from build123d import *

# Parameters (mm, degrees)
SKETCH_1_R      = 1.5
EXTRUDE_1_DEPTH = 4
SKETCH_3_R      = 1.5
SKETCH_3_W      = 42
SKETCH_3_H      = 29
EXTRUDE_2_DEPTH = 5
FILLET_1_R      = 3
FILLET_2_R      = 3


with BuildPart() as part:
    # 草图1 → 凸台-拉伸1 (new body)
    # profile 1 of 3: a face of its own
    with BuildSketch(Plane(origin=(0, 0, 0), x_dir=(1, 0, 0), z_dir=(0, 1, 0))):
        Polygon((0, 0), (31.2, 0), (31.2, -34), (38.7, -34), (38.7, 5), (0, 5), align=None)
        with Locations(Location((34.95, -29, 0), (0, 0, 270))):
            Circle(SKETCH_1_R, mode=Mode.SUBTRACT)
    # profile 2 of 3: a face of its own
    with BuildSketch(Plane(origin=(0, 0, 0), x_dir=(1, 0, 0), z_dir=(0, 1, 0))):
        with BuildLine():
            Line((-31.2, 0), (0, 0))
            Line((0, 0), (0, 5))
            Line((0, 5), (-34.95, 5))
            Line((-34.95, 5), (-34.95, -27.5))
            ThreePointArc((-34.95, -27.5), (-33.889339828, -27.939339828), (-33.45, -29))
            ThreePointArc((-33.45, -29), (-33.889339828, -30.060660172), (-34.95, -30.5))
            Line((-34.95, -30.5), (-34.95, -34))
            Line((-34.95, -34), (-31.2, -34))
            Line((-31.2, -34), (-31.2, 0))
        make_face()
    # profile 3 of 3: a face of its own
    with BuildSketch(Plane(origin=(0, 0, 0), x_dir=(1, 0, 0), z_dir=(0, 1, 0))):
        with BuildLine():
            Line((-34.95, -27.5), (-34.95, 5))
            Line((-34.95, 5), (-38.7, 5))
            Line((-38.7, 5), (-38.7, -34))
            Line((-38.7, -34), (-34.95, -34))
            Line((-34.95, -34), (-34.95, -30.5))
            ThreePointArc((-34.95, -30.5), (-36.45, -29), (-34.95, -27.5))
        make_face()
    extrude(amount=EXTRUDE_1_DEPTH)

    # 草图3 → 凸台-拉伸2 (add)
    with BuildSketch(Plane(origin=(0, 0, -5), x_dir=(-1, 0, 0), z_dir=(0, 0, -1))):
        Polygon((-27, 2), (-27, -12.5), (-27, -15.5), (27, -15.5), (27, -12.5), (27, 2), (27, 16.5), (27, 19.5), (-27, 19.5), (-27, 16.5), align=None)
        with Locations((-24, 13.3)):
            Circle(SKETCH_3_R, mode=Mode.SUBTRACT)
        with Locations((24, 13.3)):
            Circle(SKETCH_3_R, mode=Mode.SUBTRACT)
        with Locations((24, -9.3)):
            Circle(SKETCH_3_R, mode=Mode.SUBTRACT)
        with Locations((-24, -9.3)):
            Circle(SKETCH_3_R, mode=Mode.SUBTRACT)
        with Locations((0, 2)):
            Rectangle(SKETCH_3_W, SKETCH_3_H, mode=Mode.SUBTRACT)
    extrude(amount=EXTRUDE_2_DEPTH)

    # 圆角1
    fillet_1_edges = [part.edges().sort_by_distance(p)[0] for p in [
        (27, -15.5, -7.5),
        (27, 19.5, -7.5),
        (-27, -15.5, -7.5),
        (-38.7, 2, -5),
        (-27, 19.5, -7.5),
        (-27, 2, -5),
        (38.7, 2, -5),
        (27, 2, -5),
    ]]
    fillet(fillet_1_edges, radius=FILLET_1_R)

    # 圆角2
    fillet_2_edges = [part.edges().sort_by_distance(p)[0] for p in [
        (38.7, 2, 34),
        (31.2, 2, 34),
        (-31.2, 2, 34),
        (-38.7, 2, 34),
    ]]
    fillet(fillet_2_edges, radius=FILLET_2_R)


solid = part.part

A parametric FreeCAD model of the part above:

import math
import FreeCAD as App
import Part
import Sketcher
from FreeCAD import Vector
Q = App.Units.Quantity


def edges_at(feature, points):
    """Names of the edges that pass closest to the given points."""
    edges = feature.Shape.Edges
    near = lambda p: min(range(len(edges)), key=lambda i: edges[i].distToShape(Part.Vertex(*p))[0])
    return sorted({f"Edge{near(p) + 1}" for p in points})

doc = App.newDocument("Part")
body = doc.addObject("PartDesign::Body", "Body")

# Sketch on XZ plane
sketch1 = body.newObject("Sketcher::SketchObject", "Sketch")
sketch1.AttachmentSupport = (doc.getObject("XZ_Plane"), [""])
sketch1.MapMode = "FlatFace"
sketch1.addGeometry([
    Part.LineSegment(Vector(31.2, 0, 0), Vector(31.2, 34, 0)),  # 0
    Part.LineSegment(Vector(31.2, 34, 0), Vector(38.7, 34, 0)),  # 1
    Part.LineSegment(Vector(38.7, 34, 0), Vector(38.7, -5, 0)),  # 2
    Part.LineSegment(Vector(38.7, -5, 0), Vector(-38.7, -5, 0)),  # 3
    Part.LineSegment(Vector(-38.7, -5, 0), Vector(-38.7, 34, 0)),  # 4
    Part.LineSegment(Vector(-38.7, 34, 0), Vector(-31.2, 34, 0)),  # 5
    Part.LineSegment(Vector(-31.2, 34, 0), Vector(-31.2, 0, 0)),  # 6
    Part.LineSegment(Vector(-31.2, 0, 0), Vector(31.2, 0, 0)),  # 7
    Part.Circle(Vector(35, 29, 0), Vector(0, 0, 1), 1.5),  # 8
    Part.ArcOfCircle(Part.Circle(Vector(-34.9, 29, 0), Vector(0, 0, 1), 1.5), math.radians(-90), math.radians(0)),  # 9
    Part.ArcOfCircle(Part.Circle(Vector(-34.9, 29, 0), Vector(0, 0, 1), 1.5), math.radians(0), math.radians(90)),  # 10
    Part.ArcOfCircle(Part.Circle(Vector(-35, 29, 0), Vector(0, 0, 1), 1.5), math.radians(90), math.radians(270)),  # 11
], False)
sketch1.addConstraint([
    Sketcher.Constraint("Coincident", 0, 2, 1, 1),
    Sketcher.Constraint("Coincident", 1, 2, 2, 1),
    Sketcher.Constraint("Coincident", 2, 2, 3, 1),
    Sketcher.Constraint("Coincident", 3, 2, 4, 1),
    Sketcher.Constraint("Coincident", 4, 2, 5, 1),
    Sketcher.Constraint("Coincident", 5, 2, 6, 1),
    Sketcher.Constraint("Coincident", 6, 2, 7, 1),
    Sketcher.Constraint("Coincident", 7, 2, 0, 1),
    Sketcher.Constraint("Tangent", 9, 2, 10, 1),
    Sketcher.Constraint("Tangent", 10, 2, 11, 1),
    Sketcher.Constraint("Tangent", 11, 2, 9, 1),
    Sketcher.Constraint("Vertical", 0),
    Sketcher.Constraint("Horizontal", 1),
    Sketcher.Constraint("Vertical", 2),
    Sketcher.Constraint("Horizontal", 3),
    Sketcher.Constraint("Vertical", 4),
    Sketcher.Constraint("Horizontal", 5),
    Sketcher.Constraint("Vertical", 6),
    Sketcher.Constraint("Horizontal", 7),
    Sketcher.Constraint("Equal", 8, 9),
    Sketcher.Constraint("Symmetric", 6, 2, 7, 2, -1, 1),
    Sketcher.Constraint("Symmetric", 8, 3, 9, 3, -2),
    Sketcher.Constraint("Symmetric", 1, 2, 4, 2, -2),
    Sketcher.Constraint("Horizontal", 11, 3, 9, 2),
    Sketcher.Constraint("Vertical", 11, 3, 10, 2),
    Sketcher.Constraint("Vertical", 10, 2, 11, 2),
    Sketcher.Constraint("Diameter", 8, Q("3 mm")),
    Sketcher.Constraint("DistanceY", 0, 1, 0, 2, Q("34 mm")),
    Sketcher.Constraint("DistanceY", 2, 2, 2, 1, Q("39 mm")),
    Sketcher.Constraint("DistanceX", 1, 1, 1, 2, Q("7.5 mm")),
    Sketcher.Constraint("DistanceX", 3, 2, 3, 1, Q("77.4 mm")),
    Sketcher.Constraint("DistanceY", -1, 1, 8, 3, Q("29 mm")),
    Sketcher.Constraint("DistanceX", 9, 3, 8, 3, Q("69.9 mm")),
])
pad1 = body.newObject("PartDesign::Pad", "Pad")
pad1.Profile = sketch1
pad1.Length = 4
pad1.Reversed = True

# Sketch on XY plane
sketch2 = body.newObject("Sketcher::SketchObject", "Sketch001")
sketch2.AttachmentSupport = (doc.getObject("XY_Plane"), [""])
sketch2.MapMode = "FlatFace"
sketch2.AttachmentOffset = App.Placement(Vector(0, 0, -5), App.Rotation())
sketch2.addGeometry([
    Part.LineSegment(Vector(27, -15.5, 0), Vector(-27, -15.5, 0)),  # 0
    Part.LineSegment(Vector(-27, -15.5, 0), Vector(-27, 19.5, 0)),  # 1
    Part.LineSegment(Vector(-27, 19.5, 0), Vector(27, 19.5, 0)),  # 2
    Part.LineSegment(Vector(27, 19.5, 0), Vector(27, -15.5, 0)),  # 3
    Part.Circle(Vector(24, -9.3, 0), Vector(0, 0, 1), 1.5),  # 4
    Part.Circle(Vector(-24, -9.3, 0), Vector(0, 0, 1), 1.5),  # 5
    Part.Circle(Vector(24, 13.3, 0), Vector(0, 0, 1), 1.5),  # 6
    Part.LineSegment(Vector(-21, -12.5, 0), Vector(21, -12.5, 0)),  # 7
    Part.LineSegment(Vector(21, -12.5, 0), Vector(21, 16.5, 0)),  # 8
    Part.LineSegment(Vector(21, 16.5, 0), Vector(-21, 16.5, 0)),  # 9
    Part.LineSegment(Vector(-21, 16.5, 0), Vector(-21, -12.5, 0)),  # 10
    Part.Circle(Vector(-24, 13.3, 0), Vector(0, 0, 1), 1.5),  # 11
], False)
sketch2.addConstraint([
    Sketcher.Constraint("Coincident", 0, 2, 1, 1),
    Sketcher.Constraint("Coincident", 1, 2, 2, 1),
    Sketcher.Constraint("Coincident", 2, 2, 3, 1),
    Sketcher.Constraint("Coincident", 3, 2, 0, 1),
    Sketcher.Constraint("Coincident", 7, 2, 8, 1),
    Sketcher.Constraint("Coincident", 8, 2, 9, 1),
    Sketcher.Constraint("Coincident", 9, 2, 10, 1),
    Sketcher.Constraint("Coincident", 10, 2, 7, 1),
    Sketcher.Constraint("Horizontal", 0),
    Sketcher.Constraint("Vertical", 1),
    Sketcher.Constraint("Horizontal", 2),
    Sketcher.Constraint("Vertical", 3),
    Sketcher.Constraint("Horizontal", 7),
    Sketcher.Constraint("Vertical", 8),
    Sketcher.Constraint("Horizontal", 9),
    Sketcher.Constraint("Vertical", 10),
    Sketcher.Constraint("Equal", 4, 5),
    Sketcher.Constraint("Equal", 5, 6),
    Sketcher.Constraint("Equal", 6, 11),
    Sketcher.Constraint("Symmetric", 4, 3, 5, 3, -2),
    Sketcher.Constraint("Symmetric", 6, 3, 11, 3, -2),
    Sketcher.Constraint("Vertical", 4, 3, 6, 3),
    Sketcher.Constraint("Diameter", 4, Q("3 mm")),
    Sketcher.Constraint("DistanceX", 0, 2, 0, 1, Q("54 mm")),
    Sketcher.Constraint("DistanceX", 7, 1, 7, 2, Q("42 mm")),
    Sketcher.Constraint("DistanceY", 1, 1, 1, 2, Q("35 mm")),
    Sketcher.Constraint("DistanceY", 8, 1, 8, 2, Q("29 mm")),
    Sketcher.Constraint("DistanceX", -1, 1, 4, 3, Q("24 mm")),
    Sketcher.Constraint("DistanceX", 0, 2, -1, 1, Q("27 mm")),
    Sketcher.Constraint("DistanceX", -1, 1, 7, 2, Q("21 mm")),
    Sketcher.Constraint("DistanceY", 3, 2, 7, 2, Q("3 mm")),
    Sketcher.Constraint("DistanceY", 4, 3, -1, 1, Q("9.3 mm")),
    Sketcher.Constraint("DistanceY", -1, 1, 6, 3, Q("13.3 mm")),
    Sketcher.Constraint("DistanceY", 0, 2, -1, 1, Q("15.5 mm")),
])
pad2 = body.newObject("PartDesign::Pad", "Pad001")
pad2.Profile = sketch2
pad2.Length = 5
pad2.Reversed = True
doc.recompute()

fillet = body.newObject("PartDesign::Fillet", "Fillet")
fillet.Base = (pad2, edges_at(pad2, [
    (27, -15.5, -7.5),
    (27, 19.5, -7.5),
    (-27, -15.5, -7.5),
    (-38.7, 2, -5),
    (-27, 19.5, -7.5),
    (-27, 2, -5),
    (38.7, 2, -5),
    (27, 2, -5),
]))
fillet.Radius = 3
doc.recompute()

fillet2 = body.newObject("PartDesign::Fillet", "Fillet001")
fillet2.Base = (fillet, edges_at(fillet, [
    (38.7, 2, 34),
    (31.2, 2, 34),
    (-31.2, 2, 34),
    (-38.7, 2, 34),
]))
fillet2.Radius = 3

doc.recompute()
